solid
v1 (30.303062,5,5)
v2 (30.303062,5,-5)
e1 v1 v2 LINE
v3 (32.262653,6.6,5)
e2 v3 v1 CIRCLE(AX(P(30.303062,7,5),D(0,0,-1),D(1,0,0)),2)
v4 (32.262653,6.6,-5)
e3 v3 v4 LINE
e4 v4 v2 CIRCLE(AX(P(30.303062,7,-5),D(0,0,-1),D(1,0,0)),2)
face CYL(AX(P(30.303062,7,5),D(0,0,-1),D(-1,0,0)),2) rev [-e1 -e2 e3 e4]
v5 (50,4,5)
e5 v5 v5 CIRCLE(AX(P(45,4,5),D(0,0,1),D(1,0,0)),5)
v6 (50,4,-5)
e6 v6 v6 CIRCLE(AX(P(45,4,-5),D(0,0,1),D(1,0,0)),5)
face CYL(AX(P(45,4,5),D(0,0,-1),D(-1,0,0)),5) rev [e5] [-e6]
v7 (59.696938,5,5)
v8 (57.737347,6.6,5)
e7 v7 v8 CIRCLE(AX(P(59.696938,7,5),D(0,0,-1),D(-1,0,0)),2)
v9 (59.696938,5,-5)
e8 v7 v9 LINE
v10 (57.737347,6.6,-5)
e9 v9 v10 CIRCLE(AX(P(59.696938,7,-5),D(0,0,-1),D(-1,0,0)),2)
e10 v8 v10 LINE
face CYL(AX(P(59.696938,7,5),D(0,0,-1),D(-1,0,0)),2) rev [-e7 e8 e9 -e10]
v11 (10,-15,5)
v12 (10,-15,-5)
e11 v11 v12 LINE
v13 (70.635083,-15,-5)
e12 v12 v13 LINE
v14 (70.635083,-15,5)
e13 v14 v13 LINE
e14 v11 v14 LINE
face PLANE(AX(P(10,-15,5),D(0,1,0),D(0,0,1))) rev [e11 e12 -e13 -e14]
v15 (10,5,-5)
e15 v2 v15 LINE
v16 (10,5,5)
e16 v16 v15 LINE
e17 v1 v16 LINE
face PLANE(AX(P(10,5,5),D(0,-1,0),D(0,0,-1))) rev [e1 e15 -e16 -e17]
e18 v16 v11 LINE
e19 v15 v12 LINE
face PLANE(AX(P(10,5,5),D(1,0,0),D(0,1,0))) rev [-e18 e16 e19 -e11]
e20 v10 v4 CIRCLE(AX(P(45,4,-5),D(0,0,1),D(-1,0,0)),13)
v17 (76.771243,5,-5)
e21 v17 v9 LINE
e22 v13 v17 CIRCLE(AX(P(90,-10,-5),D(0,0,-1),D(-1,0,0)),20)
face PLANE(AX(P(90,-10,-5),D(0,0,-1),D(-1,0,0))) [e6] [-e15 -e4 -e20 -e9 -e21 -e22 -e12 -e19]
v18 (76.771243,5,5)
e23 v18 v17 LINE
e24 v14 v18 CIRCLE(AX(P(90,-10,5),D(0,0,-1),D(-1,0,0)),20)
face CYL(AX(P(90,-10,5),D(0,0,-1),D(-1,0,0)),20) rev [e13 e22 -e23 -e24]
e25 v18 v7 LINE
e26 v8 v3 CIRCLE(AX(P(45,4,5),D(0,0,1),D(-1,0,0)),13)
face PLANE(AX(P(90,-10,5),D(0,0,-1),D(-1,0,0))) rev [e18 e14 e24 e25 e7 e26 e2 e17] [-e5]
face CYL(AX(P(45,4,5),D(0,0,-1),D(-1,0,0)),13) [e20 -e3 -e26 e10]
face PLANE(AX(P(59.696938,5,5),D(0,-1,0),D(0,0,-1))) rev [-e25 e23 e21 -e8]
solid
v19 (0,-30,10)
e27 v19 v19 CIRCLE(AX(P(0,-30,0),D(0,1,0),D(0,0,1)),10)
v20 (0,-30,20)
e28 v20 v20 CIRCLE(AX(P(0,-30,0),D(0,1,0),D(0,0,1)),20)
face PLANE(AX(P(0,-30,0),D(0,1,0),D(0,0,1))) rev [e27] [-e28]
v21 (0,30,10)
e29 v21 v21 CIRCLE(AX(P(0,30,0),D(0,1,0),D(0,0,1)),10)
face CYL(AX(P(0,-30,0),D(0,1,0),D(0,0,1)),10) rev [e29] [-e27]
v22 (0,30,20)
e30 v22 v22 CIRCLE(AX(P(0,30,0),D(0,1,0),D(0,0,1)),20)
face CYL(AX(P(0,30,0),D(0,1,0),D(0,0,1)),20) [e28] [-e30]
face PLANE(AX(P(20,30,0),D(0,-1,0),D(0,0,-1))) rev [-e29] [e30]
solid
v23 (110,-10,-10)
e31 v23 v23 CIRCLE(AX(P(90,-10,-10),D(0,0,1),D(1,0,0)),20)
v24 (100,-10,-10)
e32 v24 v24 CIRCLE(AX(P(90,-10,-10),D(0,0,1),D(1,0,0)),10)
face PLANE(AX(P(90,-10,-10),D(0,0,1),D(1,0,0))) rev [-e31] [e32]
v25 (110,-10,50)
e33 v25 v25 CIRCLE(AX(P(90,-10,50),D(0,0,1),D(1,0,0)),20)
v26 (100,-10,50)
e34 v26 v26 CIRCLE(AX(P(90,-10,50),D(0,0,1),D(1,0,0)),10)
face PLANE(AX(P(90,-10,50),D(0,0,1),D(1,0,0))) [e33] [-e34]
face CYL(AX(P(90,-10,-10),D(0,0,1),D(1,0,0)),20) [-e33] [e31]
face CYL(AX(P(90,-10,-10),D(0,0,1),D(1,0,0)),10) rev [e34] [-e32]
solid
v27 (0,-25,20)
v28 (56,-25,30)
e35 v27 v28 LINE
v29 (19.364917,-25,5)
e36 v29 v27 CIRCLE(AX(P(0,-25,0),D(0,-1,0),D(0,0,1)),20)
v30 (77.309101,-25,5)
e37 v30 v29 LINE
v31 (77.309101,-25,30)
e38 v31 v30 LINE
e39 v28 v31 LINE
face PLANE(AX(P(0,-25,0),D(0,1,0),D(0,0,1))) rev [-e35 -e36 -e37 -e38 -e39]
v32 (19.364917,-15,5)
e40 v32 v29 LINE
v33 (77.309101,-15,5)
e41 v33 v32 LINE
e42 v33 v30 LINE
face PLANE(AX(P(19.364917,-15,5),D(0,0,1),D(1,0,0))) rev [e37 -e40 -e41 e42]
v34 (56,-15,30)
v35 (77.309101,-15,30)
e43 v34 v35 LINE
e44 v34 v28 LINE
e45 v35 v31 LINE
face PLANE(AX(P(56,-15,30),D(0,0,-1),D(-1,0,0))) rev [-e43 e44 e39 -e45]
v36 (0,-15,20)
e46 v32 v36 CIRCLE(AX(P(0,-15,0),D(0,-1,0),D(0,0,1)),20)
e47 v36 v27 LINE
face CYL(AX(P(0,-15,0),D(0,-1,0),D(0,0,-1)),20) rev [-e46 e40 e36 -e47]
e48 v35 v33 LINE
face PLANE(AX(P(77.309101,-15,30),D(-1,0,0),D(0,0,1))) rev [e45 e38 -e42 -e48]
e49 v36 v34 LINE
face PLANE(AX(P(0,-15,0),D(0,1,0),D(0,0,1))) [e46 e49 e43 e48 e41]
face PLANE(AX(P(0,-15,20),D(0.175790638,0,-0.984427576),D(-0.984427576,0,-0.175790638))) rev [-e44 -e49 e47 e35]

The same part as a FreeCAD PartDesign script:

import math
import FreeCAD as App
import Part
import Sketcher
from FreeCAD import Vector
Q = App.Units.Quantity

doc = App.newDocument("Part")
params = doc.addObject("Spreadsheet::Sheet", "Params")
for row, (alias, value) in enumerate([
    ("sketch1_width", "20 mm"),
    ("sketch1_height", "60 mm"),
    ("revolution_angle", "360 deg"),
    ("sketch2_diameter", "20 mm"),
    ("sketch3_diameter", "40 mm"),
    ("sketch3_diameter2", "20 mm"),
    ("pad1_length", "60 mm"),
    ("sketch4_diameter", "10 mm"),
    ("sketch4_radius", "20 mm"),
    ("sketch4_radius2", "2 mm"),
    ("sketch4_radius3", "13 mm"),
    ("sketch4_height", "20 mm"),
    ("pad2_length", "10 mm"),
    ("sketch5_radius", "20 mm"),
    ("sketch5_height", "25 mm"),
    ("pad3_length", "10 mm"),
], start=1):
    params.set(f"A{row}", alias)
    params.set(f"B{row}", "=" + value)
    params.setAlias(f"B{row}", alias)

body = doc.addObject("PartDesign::Body", "Body")

sketch1 = body.newObject("Sketcher::SketchObject", "Sketch")
sketch1.AttachmentSupport = (doc.getObject("XY_Plane"), [""])
sketch1.MapMode = "FlatFace"
sketch1.addGeometry(Part.LineSegment(Vector(0, 30, 0), Vector(0, -30, 0)), False)
sketch1.addGeometry(Part.LineSegment(Vector(0, -30, 0), Vector(20, -30, 0)), False)
sketch1.addGeometry(Part.LineSegment(Vector(20, -30, 0), Vector(20, 30, 0)), False)
sketch1.addGeometry(Part.LineSegment(Vector(20, 30, 0), Vector(0, 30, 0)), False)
sketch1.addConstraint(Sketcher.Constraint("Coincident", 0, 2, 1, 1))
sketch1.addConstraint(Sketcher.Constraint("Coincident", 1, 2, 2, 1))
sketch1.addConstraint(Sketcher.Constraint("Coincident", 2, 2, 3, 1))
sketch1.addConstraint(Sketcher.Constraint("Coincident", 3, 2, 0, 1))
sketch1.addConstraint(Sketcher.Constraint("Vertical", 0))
sketch1.addConstraint(Sketcher.Constraint("Horizontal", 1))
sketch1.addConstraint(Sketcher.Constraint("Vertical", 2))
sketch1.addConstraint(Sketcher.Constraint("Horizontal", 3))
sketch1.addConstraint(Sketcher.Constraint("Symmetric", 0, 2, 3, 2, -1, 1))
sketch1.addConstraint(Sketcher.Constraint("DistanceX", 1, 1, 1, 2, Q("20 mm")))
sketch1.addConstraint(Sketcher.Constraint("DistanceY", 0, 2, 0, 1, Q("60 mm")))
sketch1.setExpression("Constraints[9]", "Params.sketch1_width")
sketch1.setExpression("Constraints[10]", "Params.sketch1_height")
revolution = body.newObject("PartDesign::Revolution", "Revolution")
revolution.Profile = sketch1
revolution.ReferenceAxis = (sketch1, ["V_Axis"])
revolution.setExpression("Angle", "Params.revolution_angle")

sketch2 = body.newObject("Sketcher::SketchObject", "Sketch001")
sketch2.AttachmentSupport = (doc.getObject("XZ_Plane"), [""])
sketch2.MapMode = "FlatFace"
sketch2.AttachmentOffset = App.Placement(Vector(0, 0, -30), App.Rotation())
sketch2.addGeometry(Part.Circle(Vector(0, 0, 0), Vector(0, 0, 1), 10), False)
sketch2.addConstraint(Sketcher.Constraint("Coincident", 0, 3, -1, 1))
sketch2.addConstraint(Sketcher.Constraint("Diameter", 0, Q("20 mm")))
sketch2.setExpression("Constraints[1]", "Params.sketch2_diameter")
pocket1 = body.newObject("PartDesign::Pocket", "Pocket")
pocket1.Profile = sketch2
pocket1.Type = "ThroughAll"
pocket1.Reversed = True
body2 = doc.addObject("PartDesign::Body", "Body001")

sketch3 = body2.newObject("Sketcher::SketchObject", "Sketch002")
sketch3.AttachmentSupport = (doc.getObject("XY_Plane001"), [""])
sketch3.MapMode = "FlatFace"
sketch3.AttachmentOffset = App.Placement(Vector(0, 0, 50), App.Rotation())
sketch3.addGeometry(Part.Circle(Vector(90, -10, 0), Vector(0, 0, 1), 20), False)
sketch3.addGeometry(Part.Circle(Vector(90, -10, 0), Vector(0, 0, 1), 10), False)
sketch3.addConstraint(Sketcher.Constraint("Coincident", 1, 3, 0, 3))
sketch3.addConstraint(Sketcher.Constraint("Diameter", 0, Q("40 mm")))
sketch3.addConstraint(Sketcher.Constraint("Diameter", 1, Q("20 mm")))
sketch3.addConstraint(Sketcher.Constraint("DistanceX", -1, 1, 0, 3, Q("90 mm")))
sketch3.addConstraint(Sketcher.Constraint("DistanceY", 0, 3, -1, 1, Q("10 mm")))
sketch3.setExpression("Constraints[1]", "Params.sketch3_diameter")
sketch3.setExpression("Constraints[2]", "Params.sketch3_diameter2")
pad1 = body2.newObject("PartDesign::Pad", "Pad")
pad1.Profile = sketch3
pad1.setExpression("Length", "Params.pad1_length")
pad1.Reversed = True
body3 = doc.addObject("PartDesign::Body", "Body002")

sketch4 = body3.newObject("Sketcher::SketchObject", "Sketch003")
sketch4.AttachmentSupport = (doc.getObject("XY_Plane002"), [""])
sketch4.MapMode = "FlatFace"
sketch4.AttachmentOffset = App.Placement(Vector(0, 0, -5), App.Rotation())
sketch4.addGeometry(Part.LineSegment(Vector(10, -15, 0), Vector(70.6, -15, 0)), False)
sketch4.addGeometry(Part.ArcOfCircle(Part.Circle(Vector(90, -10, 0), Vector(0, 0, 1), 20), math.radians(131), math.radians(194)), False)
sketch4.addGeometry(Part.LineSegment(Vector(76.8, 5, 0), Vector(59.7, 5, 0)), False)
sketch4.addGeometry(Part.ArcOfCircle(Part.Circle(Vector(59.7, 7, 0), Vector(0, 0, 1), 2), math.radians(-168), math.radians(-90)), False)
sketch4.addGeometry(Part.ArcOfCircle(Part.Circle(Vector(45, 4, 0), Vector(0, 0, 1), 13), math.radians(12), math.radians(168)), False)
sketch4.addGeometry(Part.ArcOfCircle(Part.Circle(Vector(30.3, 7, 0), Vector(0, 0, 1), 2), math.radians(-90), math.radians(-12)), False)
sketch4.addGeometry(Part.LineSegment(Vector(30.3, 5, 0), Vector(10, 5, 0)), False)
sketch4.addGeometry(Part.LineSegment(Vector(10, 5, 0), Vector(10, -15, 0)), False)
sketch4.addGeometry(Part.Circle(Vector(45, 4, 0), Vector(0, 0, 1), 5), False)
sketch4.addConstraint(Sketcher.Constraint("Coincident", 0, 2, 1, 2))
sketch4.addConstraint(Sketcher.Constraint("Coincident", 1, 1, 2, 1))
sketch4.addConstraint(Sketcher.Constraint("Tangent", 2, 2, 3, 2))
sketch4.addConstraint(Sketcher.Constraint("Tangent", 3, 1, 4, 1))
sketch4.addConstraint(Sketcher.Constraint("Tangent", 4, 2, 5, 2))
sketch4.addConstraint(Sketcher.Constraint("Tangent", 5, 1, 6, 1))
sketch4.addConstraint(Sketcher.Constraint("Coincident", 6, 2, 7, 1))
sketch4.addConstraint(Sketcher.Constraint("Coincident", 7, 2, 0, 1))
sketch4.addConstraint(Sketcher.Constraint("Horizontal", 0))
sketch4.addConstraint(Sketcher.Constraint("Horizontal", 2))
sketch4.addConstraint(Sketcher.Constraint("Horizontal", 6))
sketch4.addConstraint(Sketcher.Constraint("Vertical", 7))
sketch4.addConstraint(Sketcher.Constraint("Coincident", 8, 3, 4, 3))
sketch4.addConstraint(Sketcher.Constraint("Equal", 3, 5))
sketch4.addConstraint(Sketcher.Constraint("Horizontal", 3, 3, 5, 3))
sketch4.addConstraint(Sketcher.Constraint("Diameter", 8, Q("10 mm")))
sketch4.addConstraint(Sketcher.Constraint("Radius", 1, Q("20 mm")))
sketch4.addConstraint(Sketcher.Constraint("Radius", 3, Q("2 mm")))
sketch4.addConstraint(Sketcher.Constraint("Radius", 4, Q("13 mm")))
sketch4.addConstraint(Sketcher.Constraint("DistanceY", 7, 2, 7, 1, Q("20 mm")))
sketch4.addConstraint(Sketcher.Constraint("DistanceX", -1, 1, 1, 3, Q("90 mm")))
sketch4.addConstraint(Sketcher.Constraint("DistanceY", 1, 3, -1, 1, Q("10 mm")))
sketch4.addConstraint(Sketcher.Constraint("DistanceY", -1, 1, 3, 3, Q("7 mm")))
sketch4.addConstraint(Sketcher.Constraint("DistanceX", -1, 1, 4, 3, Q("45 mm")))
sketch4.addConstraint(Sketcher.Constraint("DistanceY", -1, 1, 4, 3, Q("4 mm")))
sketch4.addConstraint(Sketcher.Constraint("DistanceX", -1, 1, 6, 2, Q("10 mm")))
sketch4.setExpression("Constraints[15]", "Params.sketch4_diameter")
sketch4.setExpression("Constraints[16]", "Params.sketch4_radius")
sketch4.setExpression("Constraints[17]", "Params.sketch4_radius2")
sketch4.setExpression("Constraints[18]", "Params.sketch4_radius3")
sketch4.setExpression("Constraints[19]", "Params.sketch4_height")
pad2 = body3.newObject("PartDesign::Pad", "Pad001")
pad2.Profile = sketch4
pad2.setExpression("Length", "Params.pad2_length")
body4 = doc.addObject("PartDesign::Body", "Body003")

sketch5 = body4.newObject("Sketcher::SketchObject", "Sketch004")
sketch5.AttachmentSupport = (doc.getObject("XZ_Plane003"), [""])
sketch5.MapMode = "FlatFace"
sketch5.AttachmentOffset = App.Placement(Vector(0, 0, 25), App.Rotation())
sketch5.addGeometry(Part.LineSegment(Vector(0, 20, 0), Vector(56, 30, 0)), False)
sketch5.addGeometry(Part.LineSegment(Vector(56, 30, 0), Vector(77, 30, 0)), False)
sketch5.addGeometry(Part.LineSegment(Vector(77, 30, 0), Vector(77, 5, 0)), False)
sketch5.addGeometry(Part.LineSegment(Vector(77, 5, 0), Vector(19, 5, 0)), False)
sketch5.addGeometry(Part.ArcOfCircle(Part.Circle(Vector(0, 0, 0), Vector(0, 0, 1), 20), math.radians(14), math.radians(90)), False)
sketch5.addConstraint(Sketcher.Constraint("Coincident", 0, 2, 1, 1))
sketch5.addConstraint(Sketcher.Constraint("Coincident", 1, 2, 2, 1))
sketch5.addConstraint(Sketcher.Constraint("Coincident", 2, 2, 3, 1))
sketch5.addConstraint(Sketcher.Constraint("Coincident", 3, 2, 4, 1))
sketch5.addConstraint(Sketcher.Constraint("Coincident", 4, 2, 0, 1))
sketch5.addConstraint(Sketcher.Constraint("Horizontal", 1))
sketch5.addConstraint(Sketcher.Constraint("Vertical", 2))
sketch5.addConstraint(Sketcher.Constraint("Horizontal", 3))
sketch5.addConstraint(Sketcher.Constraint("Coincident", 4, 3, -1, 1))
sketch5.addConstraint(Sketcher.Constraint("PointOnObject", 4, 2, -2))
sketch5.addConstraint(Sketcher.Constraint("Radius", 4, Q("20 mm")))
sketch5.addConstraint(Sketcher.Constraint("DistanceY", 2, 2, 2, 1, Q("25 mm")))
sketch5.addConstraint(Sketcher.Constraint("DistanceX", -1, 1, 0, 2, Q("56 mm")))
sketch5.addConstraint(Sketcher.Constraint("DistanceY", -1, 1, 0, 2, Q("30 mm")))
sketch5.addConstraint(Sketcher.Constraint("DistanceX", 1, 1, 1, 2, Q("21.309101 mm")))
sketch5.setExpression("Constraints[10]", "Params.sketch5_radius")
sketch5.setExpression("Constraints[11]", "Params.sketch5_height")
pad3 = body4.newObject("PartDesign::Pad", "Pad002")
pad3.Profile = sketch5
pad3.setExpression("Length", "Params.pad3_length")
pad3.Reversed = True

doc.recompute()
